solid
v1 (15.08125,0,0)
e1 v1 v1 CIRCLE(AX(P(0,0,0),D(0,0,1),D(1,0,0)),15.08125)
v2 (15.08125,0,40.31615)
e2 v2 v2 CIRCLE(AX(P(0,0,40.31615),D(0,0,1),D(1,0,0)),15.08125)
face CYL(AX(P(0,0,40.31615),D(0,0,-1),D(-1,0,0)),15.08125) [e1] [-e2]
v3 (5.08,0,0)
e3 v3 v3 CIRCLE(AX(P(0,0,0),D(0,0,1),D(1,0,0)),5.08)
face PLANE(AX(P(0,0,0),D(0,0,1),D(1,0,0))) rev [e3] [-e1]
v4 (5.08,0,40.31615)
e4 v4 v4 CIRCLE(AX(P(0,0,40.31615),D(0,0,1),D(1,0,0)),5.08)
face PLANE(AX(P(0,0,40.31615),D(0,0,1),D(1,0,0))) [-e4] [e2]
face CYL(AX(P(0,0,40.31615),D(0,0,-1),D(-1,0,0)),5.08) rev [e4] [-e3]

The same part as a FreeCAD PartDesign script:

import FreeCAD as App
import Part
import Sketcher

V = App.Vector
Q = App.Units.Quantity

doc = App.newDocument("Part")
body = doc.addObject("PartDesign::Body", "Body")

# Sketch on XY plane
sketch1 = body.newObject("Sketcher::SketchObject", "Sketch")
sketch1.AttachmentSupport = (doc.getObject("XY_Plane"), [""])
sketch1.MapMode = "FlatFace"
sketch1.addGeometry([
    Part.Circle(V(0, 0, 0), V(0, 0, 1), 15),
    Part.Circle(V(0, 0, 0), V(0, 0, 1), 5),
], False)
sketch1.addConstraint([
    Sketcher.Constraint("Coincident", 0, 3, -1, 1),
    Sketcher.Constraint("Coincident", 1, 3, -1, 1),
    Sketcher.Constraint("Diameter", 1, Q("0.4 in")),
    Sketcher.Constraint("Diameter", 0, Q("1.1875 in")),
])
pad1 = body.newObject("PartDesign::Pad", "Pad")
pad1.Profile = sketch1
pad1.Length = 40.31615

doc.recompute()
